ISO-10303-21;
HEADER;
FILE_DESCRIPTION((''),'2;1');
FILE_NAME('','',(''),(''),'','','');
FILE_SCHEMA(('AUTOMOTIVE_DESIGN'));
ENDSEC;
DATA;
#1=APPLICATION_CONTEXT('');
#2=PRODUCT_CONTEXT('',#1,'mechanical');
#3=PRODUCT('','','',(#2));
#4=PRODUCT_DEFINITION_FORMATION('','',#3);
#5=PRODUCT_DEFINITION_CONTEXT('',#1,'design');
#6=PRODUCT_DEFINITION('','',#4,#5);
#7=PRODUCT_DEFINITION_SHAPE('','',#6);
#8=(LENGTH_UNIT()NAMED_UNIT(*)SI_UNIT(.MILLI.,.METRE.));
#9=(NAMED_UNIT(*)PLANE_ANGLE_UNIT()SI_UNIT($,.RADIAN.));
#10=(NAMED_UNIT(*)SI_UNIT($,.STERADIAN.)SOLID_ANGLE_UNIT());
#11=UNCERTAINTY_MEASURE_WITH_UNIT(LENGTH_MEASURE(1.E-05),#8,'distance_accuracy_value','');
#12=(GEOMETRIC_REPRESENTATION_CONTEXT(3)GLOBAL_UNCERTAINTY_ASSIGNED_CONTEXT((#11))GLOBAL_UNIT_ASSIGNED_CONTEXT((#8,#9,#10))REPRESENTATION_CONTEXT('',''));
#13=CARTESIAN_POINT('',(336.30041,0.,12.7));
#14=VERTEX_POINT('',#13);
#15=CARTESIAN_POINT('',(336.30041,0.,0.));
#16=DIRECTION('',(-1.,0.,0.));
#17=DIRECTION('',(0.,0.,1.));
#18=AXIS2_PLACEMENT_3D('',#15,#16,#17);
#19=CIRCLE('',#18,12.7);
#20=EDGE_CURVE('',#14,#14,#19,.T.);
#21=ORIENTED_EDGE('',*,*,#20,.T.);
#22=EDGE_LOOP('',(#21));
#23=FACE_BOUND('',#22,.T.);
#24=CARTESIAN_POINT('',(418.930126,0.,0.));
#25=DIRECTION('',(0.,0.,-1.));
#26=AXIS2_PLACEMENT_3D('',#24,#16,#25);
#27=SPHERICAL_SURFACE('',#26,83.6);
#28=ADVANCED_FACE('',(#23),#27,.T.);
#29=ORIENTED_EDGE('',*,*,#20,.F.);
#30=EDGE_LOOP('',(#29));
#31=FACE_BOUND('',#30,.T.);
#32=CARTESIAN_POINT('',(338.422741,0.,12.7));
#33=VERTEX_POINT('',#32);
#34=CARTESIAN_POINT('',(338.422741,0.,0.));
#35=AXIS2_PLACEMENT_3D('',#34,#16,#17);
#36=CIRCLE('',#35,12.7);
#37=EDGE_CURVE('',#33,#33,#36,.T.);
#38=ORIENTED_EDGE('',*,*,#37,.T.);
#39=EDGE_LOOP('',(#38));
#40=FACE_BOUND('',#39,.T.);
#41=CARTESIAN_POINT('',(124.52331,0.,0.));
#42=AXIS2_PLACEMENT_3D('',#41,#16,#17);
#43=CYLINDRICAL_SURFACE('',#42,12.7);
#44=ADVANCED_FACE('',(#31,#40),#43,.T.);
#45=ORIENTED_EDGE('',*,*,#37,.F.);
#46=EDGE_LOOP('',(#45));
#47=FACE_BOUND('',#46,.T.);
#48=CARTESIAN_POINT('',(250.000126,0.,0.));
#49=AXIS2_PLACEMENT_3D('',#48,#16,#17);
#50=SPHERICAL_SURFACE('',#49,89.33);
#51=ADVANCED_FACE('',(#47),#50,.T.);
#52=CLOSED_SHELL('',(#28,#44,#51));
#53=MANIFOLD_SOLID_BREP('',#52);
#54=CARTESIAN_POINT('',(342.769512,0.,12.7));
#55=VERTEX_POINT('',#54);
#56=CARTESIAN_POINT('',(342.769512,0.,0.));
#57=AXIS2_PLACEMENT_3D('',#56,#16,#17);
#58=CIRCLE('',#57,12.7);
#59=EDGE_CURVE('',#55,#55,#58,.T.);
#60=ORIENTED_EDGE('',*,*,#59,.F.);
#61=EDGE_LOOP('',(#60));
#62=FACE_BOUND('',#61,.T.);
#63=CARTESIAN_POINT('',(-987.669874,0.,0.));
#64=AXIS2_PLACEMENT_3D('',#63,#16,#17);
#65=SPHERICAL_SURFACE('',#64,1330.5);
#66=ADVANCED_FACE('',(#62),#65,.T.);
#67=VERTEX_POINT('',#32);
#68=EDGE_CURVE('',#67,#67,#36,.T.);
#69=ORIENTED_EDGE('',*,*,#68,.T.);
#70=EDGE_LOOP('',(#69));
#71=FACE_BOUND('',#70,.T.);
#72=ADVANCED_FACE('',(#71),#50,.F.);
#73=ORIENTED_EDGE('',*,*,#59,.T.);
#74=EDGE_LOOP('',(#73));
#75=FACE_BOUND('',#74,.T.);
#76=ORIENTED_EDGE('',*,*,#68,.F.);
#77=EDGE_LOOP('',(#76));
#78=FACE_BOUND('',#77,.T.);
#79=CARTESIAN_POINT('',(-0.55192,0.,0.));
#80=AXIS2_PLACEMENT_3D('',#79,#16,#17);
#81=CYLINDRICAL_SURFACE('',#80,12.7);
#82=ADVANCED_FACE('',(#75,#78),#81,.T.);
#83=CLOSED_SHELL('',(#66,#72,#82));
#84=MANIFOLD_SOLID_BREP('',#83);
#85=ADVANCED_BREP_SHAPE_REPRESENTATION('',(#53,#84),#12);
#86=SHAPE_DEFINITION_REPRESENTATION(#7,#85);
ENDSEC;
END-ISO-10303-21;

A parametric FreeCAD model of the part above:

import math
import FreeCAD as App
import Part
import Sketcher

doc = App.newDocument("Part")
body = doc.addObject("PartDesign::Body", "Body")

# Sketch on XZ plane
sketch1 = body.newObject("Sketcher::SketchObject", "Sketch")
sketch1.AttachmentSupport = (doc.getObject("XZ_Plane"), [""])
sketch1.MapMode = "FlatFace"
sketch1.addGeometry([
    Part.ArcOfCircle(Part.Circle(App.Vector(418.9, 0, 0), App.Vector(0, 0, 1), 83.6), math.radians(-180), math.radians(-171.26)),
    Part.LineSegment(App.Vector(335.3, 0, 0), App.Vector(339.3, 0, 0)),
    Part.ArcOfCircle(Part.Circle(App.Vector(250, 0, 0), App.Vector(0, 0, 1), 89.3), math.radians(-8.17), math.radians(0)),
    Part.LineSegment(App.Vector(338.4, -12.7, 0), App.Vector(336.3, -12.7, 0)),
], False)
sketch1.addConstraint([
    Sketcher.Constraint("Coincident", 0, 1, 1, 1),
    Sketcher.Constraint("Coincident", 1, 2, 2, 2),
    Sketcher.Constraint("Coincident", 2, 1, 3, 1),
    Sketcher.Constraint("Coincident", 3, 2, 0, 2),
    Sketcher.Constraint("Horizontal", 1),
    Sketcher.Constraint("Horizontal", 3),
    Sketcher.Constraint("PointOnObject", 0, 3, -1),
    Sketcher.Constraint("PointOnObject", 2, 3, -1),
    Sketcher.Constraint("PointOnObject", 0, 1, -1),
    Sketcher.Constraint("Radius", 0, 83.6),
    Sketcher.Constraint("DistanceX", 1, 1, 1, 2, 4.0),
    Sketcher.Constraint("Radius", 2, 89.33),
    Sketcher.Constraint("DistanceY", 2, 1, -1, 1, 12.7),
    Sketcher.Constraint("DistanceX", -1, 1, 2, 1, 338.422741),
])
revolution = body.newObject("PartDesign::Revolution", "Revolution")
revolution.Profile = sketch1
revolution.ReferenceAxis = (sketch1, ["H_Axis"])
revolution.Angle = 360
body2 = doc.addObject("PartDesign::Body", "Body001")

# Sketch on XZ plane
sketch2 = body2.newObject("Sketcher::SketchObject", "Sketch001")
sketch2.AttachmentSupport = (doc.getObject("XZ_Plane001"), [""])
sketch2.MapMode = "FlatFace"
sketch2.addGeometry([
    Part.LineSegment(App.Vector(342.8, -12.7, 0), App.Vector(338.4, -12.7, 0)),
    Part.ArcOfCircle(Part.Circle(App.Vector(250, 0, 0), App.Vector(0, 0, 1), 89.3), math.radians(-8.17), math.radians(0)),
    Part.LineSegment(App.Vector(339.3, 0, 0), App.Vector(342.8, 0, 0)),
    Part.ArcOfCircle(Part.Circle(App.Vector(-987.7, 0, 0), App.Vector(0, 0, 1), 1330.5), math.radians(-0.55), math.radians(0)),
], False)
sketch2.addConstraint([
    Sketcher.Constraint("Coincident", 0, 2, 1, 1),
    Sketcher.Constraint("Coincident", 1, 2, 2, 1),
    Sketcher.Constraint("Coincident", 2, 2, 3, 2),
    Sketcher.Constraint("Coincident", 3, 1, 0, 1),
    Sketcher.Constraint("Horizontal", 0),
    Sketcher.Constraint("Horizontal", 2),
    Sketcher.Constraint("PointOnObject", 1, 3, -1),
    Sketcher.Constraint("PointOnObject", 3, 3, -1),
    Sketcher.Constraint("PointOnObject", 1, 2, -1),
    Sketcher.Constraint("Radius", 1, 89.33),
    Sketcher.Constraint("DistanceX", 2, 1, 2, 2, 3.5),
    Sketcher.Constraint("DistanceY", 0, 2, -1, 1, 12.7),
    Sketcher.Constraint("Radius", 3, 1330.499983),
    Sketcher.Constraint("DistanceX", -1, 1, 0, 2, 338.422741),
])
revolution2 = body2.newObject("PartDesign::Revolution", "Revolution001")
revolution2.Profile = sketch2
revolution2.ReferenceAxis = (sketch2, ["H_Axis"])
revolution2.Angle = 360

doc.recompute()
